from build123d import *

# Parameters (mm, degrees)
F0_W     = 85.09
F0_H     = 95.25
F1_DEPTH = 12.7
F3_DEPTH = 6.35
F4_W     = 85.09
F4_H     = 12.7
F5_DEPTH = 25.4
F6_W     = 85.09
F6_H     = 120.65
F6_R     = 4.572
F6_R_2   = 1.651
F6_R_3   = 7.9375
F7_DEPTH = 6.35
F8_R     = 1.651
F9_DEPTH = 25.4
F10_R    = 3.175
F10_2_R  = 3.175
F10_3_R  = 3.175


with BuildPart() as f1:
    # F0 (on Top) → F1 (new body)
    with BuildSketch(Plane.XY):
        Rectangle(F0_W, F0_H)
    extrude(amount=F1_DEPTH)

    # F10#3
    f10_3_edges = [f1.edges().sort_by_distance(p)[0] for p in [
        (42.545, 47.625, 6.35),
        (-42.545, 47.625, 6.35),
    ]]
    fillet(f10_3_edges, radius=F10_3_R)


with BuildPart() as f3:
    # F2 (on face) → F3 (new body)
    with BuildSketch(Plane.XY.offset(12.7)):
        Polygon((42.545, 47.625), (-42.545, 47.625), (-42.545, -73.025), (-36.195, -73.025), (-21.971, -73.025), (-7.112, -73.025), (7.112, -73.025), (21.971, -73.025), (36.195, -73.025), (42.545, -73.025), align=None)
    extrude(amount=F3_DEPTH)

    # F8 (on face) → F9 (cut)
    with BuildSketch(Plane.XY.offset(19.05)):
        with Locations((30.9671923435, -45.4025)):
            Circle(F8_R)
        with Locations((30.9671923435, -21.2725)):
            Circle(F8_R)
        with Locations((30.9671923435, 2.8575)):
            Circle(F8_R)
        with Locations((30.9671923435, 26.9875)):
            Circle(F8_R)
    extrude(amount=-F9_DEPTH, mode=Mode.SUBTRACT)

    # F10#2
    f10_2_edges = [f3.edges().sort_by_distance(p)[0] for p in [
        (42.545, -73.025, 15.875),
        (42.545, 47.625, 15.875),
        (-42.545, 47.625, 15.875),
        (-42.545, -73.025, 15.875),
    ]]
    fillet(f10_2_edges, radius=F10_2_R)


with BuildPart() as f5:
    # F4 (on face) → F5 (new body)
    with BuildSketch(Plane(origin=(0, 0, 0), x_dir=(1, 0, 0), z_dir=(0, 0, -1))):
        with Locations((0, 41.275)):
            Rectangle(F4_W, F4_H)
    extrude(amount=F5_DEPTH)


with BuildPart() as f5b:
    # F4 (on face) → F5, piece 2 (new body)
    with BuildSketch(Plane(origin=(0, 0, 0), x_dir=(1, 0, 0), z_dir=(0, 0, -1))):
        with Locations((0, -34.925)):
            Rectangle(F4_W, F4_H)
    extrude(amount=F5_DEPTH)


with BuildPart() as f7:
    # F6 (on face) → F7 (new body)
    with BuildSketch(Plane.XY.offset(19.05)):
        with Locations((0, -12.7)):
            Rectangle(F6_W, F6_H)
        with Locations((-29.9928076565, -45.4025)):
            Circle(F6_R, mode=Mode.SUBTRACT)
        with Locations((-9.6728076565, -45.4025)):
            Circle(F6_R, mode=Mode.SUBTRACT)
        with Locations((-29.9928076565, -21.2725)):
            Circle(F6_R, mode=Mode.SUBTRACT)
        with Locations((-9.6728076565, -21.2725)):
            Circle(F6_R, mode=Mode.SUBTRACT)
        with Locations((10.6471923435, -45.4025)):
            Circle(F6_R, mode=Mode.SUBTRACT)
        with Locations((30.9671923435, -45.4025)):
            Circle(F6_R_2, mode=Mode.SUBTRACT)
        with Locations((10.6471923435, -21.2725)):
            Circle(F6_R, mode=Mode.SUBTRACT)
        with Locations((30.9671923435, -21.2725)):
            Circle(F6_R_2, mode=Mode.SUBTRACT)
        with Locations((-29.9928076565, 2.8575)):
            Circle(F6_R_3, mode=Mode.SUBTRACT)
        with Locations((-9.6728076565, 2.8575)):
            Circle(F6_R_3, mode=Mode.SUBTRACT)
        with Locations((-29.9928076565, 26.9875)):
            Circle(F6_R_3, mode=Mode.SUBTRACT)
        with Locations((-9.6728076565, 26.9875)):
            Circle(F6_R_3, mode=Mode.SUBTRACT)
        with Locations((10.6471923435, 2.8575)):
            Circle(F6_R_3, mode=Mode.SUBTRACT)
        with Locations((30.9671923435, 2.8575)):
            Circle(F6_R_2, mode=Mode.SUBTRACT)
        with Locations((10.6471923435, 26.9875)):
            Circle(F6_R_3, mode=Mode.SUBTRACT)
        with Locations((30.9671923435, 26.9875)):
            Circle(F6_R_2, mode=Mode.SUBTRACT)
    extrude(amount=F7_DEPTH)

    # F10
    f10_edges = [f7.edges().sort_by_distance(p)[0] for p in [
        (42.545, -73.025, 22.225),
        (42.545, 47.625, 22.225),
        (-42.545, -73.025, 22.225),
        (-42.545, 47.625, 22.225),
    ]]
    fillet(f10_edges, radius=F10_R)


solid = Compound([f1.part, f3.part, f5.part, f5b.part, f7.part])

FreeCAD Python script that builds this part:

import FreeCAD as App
import Part
import Sketcher

V = App.Vector
Q = App.Units.Quantity


def edges_at(feature, points):
    """Names of the edges that pass closest to the given points."""
    edges = feature.Shape.Edges
    near = lambda p: min(range(len(edges)), key=lambda i: edges[i].distToShape(Part.Vertex(*p))[0])
    return sorted({f"Edge{near(p) + 1}" for p in points})

doc = App.newDocument("Part")
body = doc.addObject("PartDesign::Body", "Body")

sketch1 = doc.addObject("Sketcher::SketchObject", "Sketch")
body.addObject(sketch1)
sketch1.AttachmentSupport = (doc.XY_Plane, [""])
sketch1.MapMode = "FlatFace"
sketch1.addGeometry(Part.LineSegment(V(-43, 48, 0), V(-43, -48, 0)), False)
sketch1.addGeometry(Part.LineSegment(V(-43, -48, 0), V(43, -48, 0)), False)
sketch1.addGeometry(Part.LineSegment(V(43, -48, 0), V(43, 48, 0)), False)
sketch1.addGeometry(Part.LineSegment(V(43, 48, 0), V(-43, 48, 0)), False)
sketch1.addConstraint(Sketcher.Constraint("Coincident", 0, 2, 1, 1))
sketch1.addConstraint(Sketcher.Constraint("Coincident", 1, 2, 2, 1))
sketch1.addConstraint(Sketcher.Constraint("Coincident", 2, 2, 3, 1))
sketch1.addConstraint(Sketcher.Constraint("Coincident", 3, 2, 0, 1))
sketch1.addConstraint(Sketcher.Constraint("Vertical", 0))
sketch1.addConstraint(Sketcher.Constraint("Horizontal", 1))
sketch1.addConstraint(Sketcher.Constraint("Vertical", 2))
sketch1.addConstraint(Sketcher.Constraint("Horizontal", 3))
sketch1.addConstraint(Sketcher.Constraint("Symmetric", 0, 2, 2, 2, -1, 1))
sketch1.addConstraint(Sketcher.Constraint("DistanceX", 1, 1, 1, 2, Q("3.35 in")))
sketch1.addConstraint(Sketcher.Constraint("DistanceY", 0, 2, 0, 1, Q("3.75 in")))
pad1 = doc.addObject("PartDesign::Pad", "Pad")
body.addObject(pad1)
pad1.Profile = sketch1
pad1.Length = Q("0.5 in")
doc.recompute()

fillet = doc.addObject("PartDesign::Fillet", "Fillet")
body.addObject(fillet)
fillet.Base = (pad1, edges_at(pad1, [(42.545, 47.625, 6.35), (-42.545, 47.625, 6.35)]))
fillet.Radius = Q("0.125 in")
body2 = doc.addObject("PartDesign::Body", "Body001")

sketch2 = doc.addObject("Sketcher::SketchObject", "Sketch001")
body2.addObject(sketch2)
sketch2.AttachmentSupport = (doc.getObject("XY_Plane001"), [""])
sketch2.MapMode = "FlatFace"
sketch2.AttachmentOffset = App.Placement(V(0, 0, 0.5 * 25.4), App.Rotation())
sketch2.addGeometry(Part.LineSegment(V(43, 48, 0), V(-43, 48, 0)), False)
sketch2.addGeometry(Part.LineSegment(V(-43, 48, 0), V(-43, -73, 0)), False)
sketch2.addGeometry(Part.LineSegment(V(-43, -73, 0), V(43, -73, 0)), False)
sketch2.addGeometry(Part.LineSegment(V(43, -73, 0), V(43, 48, 0)), False)
sketch2.addConstraint(Sketcher.Constraint("Coincident", 0, 2, 1, 1))
sketch2.addConstraint(Sketcher.Constraint("Coincident", 1, 2, 2, 1))
sketch2.addConstraint(Sketcher.Constraint("Coincident", 2, 2, 3, 1))
sketch2.addConstraint(Sketcher.Constraint("Coincident", 3, 2, 0, 1))
sketch2.addConstraint(Sketcher.Constraint("Horizontal", 0))
sketch2.addConstraint(Sketcher.Constraint("Vertical", 1))
sketch2.addConstraint(Sketcher.Constraint("Horizontal", 2))
sketch2.addConstraint(Sketcher.Constraint("Vertical", 3))
sketch2.addConstraint(Sketcher.Constraint("DistanceX", 0, 2, 0, 1, Q("3.35 in")))
sketch2.addConstraint(Sketcher.Constraint("DistanceY", 1, 2, 1, 1, Q("4.75 in")))
sketch2.addConstraint(Sketcher.Constraint("DistanceX", 0, 2, -1, 1, Q("1.675 in")))
sketch2.addConstraint(Sketcher.Constraint("DistanceY", -1, 1, 0, 2, Q("1.875 in")))
pad2 = doc.addObject("PartDesign::Pad", "Pad001")
body2.addObject(pad2)
pad2.Profile = sketch2
pad2.Length = Q("0.25 in")

sketch3 = doc.addObject("Sketcher::SketchObject", "Sketch002")
body2.addObject(sketch3)
sketch3.AttachmentSupport = (doc.getObject("XY_Plane001"), [""])
sketch3.MapMode = "FlatFace"
sketch3.AttachmentOffset = App.Placement(V(0, 0, 0.75 * 25.4), App.Rotation())
sketch3.addGeometry(Part.Circle(V(31, -45.4, 0), V(0, 0, 1), 1.7), False)
sketch3.addGeometry(Part.Circle(V(31, -21.3, 0), V(0, 0, 1), 1.7), False)
sketch3.addGeometry(Part.Circle(V(31, 2.9, 0), V(0, 0, 1), 1.7), False)
sketch3.addGeometry(Part.Circle(V(31, 27, 0), V(0, 0, 1), 1.7), False)
sketch3.addConstraint(Sketcher.Constraint("Equal", 0, 1))
sketch3.addConstraint(Sketcher.Constraint("Equal", 1, 2))
sketch3.addConstraint(Sketcher.Constraint("Equal", 2, 3))
sketch3.addConstraint(Sketcher.Constraint("Vertical", 0, 3, 1, 3))
sketch3.addConstraint(Sketcher.Constraint("Vertical", 1, 3, 2, 3))
sketch3.addConstraint(Sketcher.Constraint("Vertical", 2, 3, 3, 3))
sketch3.addConstraint(Sketcher.Constraint("Diameter", 0, Q("0.13 in")))
sketch3.addConstraint(Sketcher.Constraint("DistanceY", 0, 3, 2, 3, Q("1.9 in")))
sketch3.addConstraint(Sketcher.Constraint("DistanceY", 1, 3, 3, 3, Q("1.9 in")))
sketch3.addConstraint(Sketcher.Constraint("DistanceY", 0, 3, 1, 3, Q("0.95 in")))
sketch3.addConstraint(Sketcher.Constraint("DistanceY", -1, 1, 3, 3, Q("1.0625 in")))
sketch3.addConstraint(Sketcher.Constraint("DistanceX", -1, 1, 0, 3, 30.967192))
pocket1 = doc.addObject("PartDesign::Pocket", "Pocket")
body2.addObject(pocket1)
pocket1.Profile = sketch3
pocket1.Length = Q("1 in")
doc.recompute()

fillet2 = doc.addObject("PartDesign::Fillet", "Fillet001")
body2.addObject(fillet2)
fillet2.Base = (pocket1, edges_at(pocket1, [
    (42.545, -73.025, 15.875),
    (42.545, 47.625, 15.875),
    (-42.545, 47.625, 15.875),
    (-42.545, -73.025, 15.875),
]))
fillet2.Radius = Q("0.125 in")
body3 = doc.addObject("PartDesign::Body", "Body002")

sketch4 = doc.addObject("Sketcher::SketchObject", "Sketch003")
body3.addObject(sketch4)
sketch4.AttachmentSupport = (doc.getObject("XY_Plane002"), [""])
sketch4.MapMode = "FlatFace"
sketch4.addGeometry(Part.LineSegment(V(-43, -48, 0), V(-43, -35, 0)), False)
sketch4.addGeometry(Part.LineSegment(V(-43, -35, 0), V(43, -35, 0)), False)
sketch4.addGeometry(Part.LineSegment(V(43, -35, 0), V(43, -48, 0)), False)
sketch4.addGeometry(Part.LineSegment(V(43, -48, 0), V(-43, -48, 0)), False)
sketch4.addConstraint(Sketcher.Constraint("Coincident", 0, 2, 1, 1))
sketch4.addConstraint(Sketcher.Constraint("Coincident", 1, 2, 2, 1))
sketch4.addConstraint(Sketcher.Constraint("Coincident", 2, 2, 3, 1))
sketch4.addConstraint(Sketcher.Constraint("Coincident", 3, 2, 0, 1))
sketch4.addConstraint(Sketcher.Constraint("Vertical", 0))
sketch4.addConstraint(Sketcher.Constraint("Horizontal", 1))
sketch4.addConstraint(Sketcher.Constraint("Vertical", 2))
sketch4.addConstraint(Sketcher.Constraint("Horizontal", 3))
sketch4.addConstraint(Sketcher.Constraint("DistanceY", 0, 1, 0, 2, Q("0.5 in")))
sketch4.addConstraint(Sketcher.Constraint("DistanceX", 1, 1, 1, 2, Q("3.35 in")))
sketch4.addConstraint(Sketcher.Constraint("DistanceX", 0, 2, -1, 1, Q("1.675 in")))
sketch4.addConstraint(Sketcher.Constraint("DistanceY", 0, 2, -1, 1, Q("1.375 in")))
pad3 = doc.addObject("PartDesign::Pad", "Pad002")
body3.addObject(pad3)
pad3.Profile = sketch4
pad3.Length = Q("1 in")
pad3.Reversed = True
body4 = doc.addObject("PartDesign::Body", "Body003")

sketch5 = doc.addObject("Sketcher::SketchObject", "Sketch004")
body4.addObject(sketch5)
sketch5.AttachmentSupport = (doc.getObject("XY_Plane003"), [""])
sketch5.MapMode = "FlatFace"
sketch5.addGeometry(Part.LineSegment(V(-43, 29, 0), V(-43, 41, 0)), False)
sketch5.addGeometry(Part.LineSegment(V(-43, 41, 0), V(43, 41, 0)), False)
sketch5.addGeometry(Part.LineSegment(V(43, 41, 0), V(43, 29, 0)), False)
sketch5.addGeometry(Part.LineSegment(V(43, 29, 0), V(-43, 29, 0)), False)
sketch5.addConstraint(Sketcher.Constraint("Coincident", 0, 2, 1, 1))
sketch5.addConstraint(Sketcher.Constraint("Coincident", 1, 2, 2, 1))
sketch5.addConstraint(Sketcher.Constraint("Coincident", 2, 2, 3, 1))
sketch5.addConstraint(Sketcher.Constraint("Coincident", 3, 2, 0, 1))
sketch5.addConstraint(Sketcher.Constraint("Vertical", 0))
sketch5.addConstraint(Sketcher.Constraint("Horizontal", 1))
sketch5.addConstraint(Sketcher.Constraint("Vertical", 2))
sketch5.addConstraint(Sketcher.Constraint("Horizontal", 3))
sketch5.addConstraint(Sketcher.Constraint("DistanceY", 0, 1, 0, 2, Q("0.5 in")))
sketch5.addConstraint(Sketcher.Constraint("DistanceX", 1, 1, 1, 2, Q("3.35 in")))
sketch5.addConstraint(Sketcher.Constraint("DistanceX", 0, 2, -1, 1, Q("1.675 in")))
sketch5.addConstraint(Sketcher.Constraint("DistanceY", -1, 1, 0, 2, Q("1.625 in")))
pad4 = doc.addObject("PartDesign::Pad", "Pad003")
body4.addObject(pad4)
pad4.Profile = sketch5
pad4.Length = Q("1 in")
pad4.Reversed = True
body5 = doc.addObject("PartDesign::Body", "Body004")

sketch6 = doc.addObject("Sketcher::SketchObject", "Sketch005")
body5.addObject(sketch6)
sketch6.AttachmentSupport = (doc.getObject("XY_Plane004"), [""])
sketch6.MapMode = "FlatFace"
sketch6.AttachmentOffset = App.Placement(V(0, 0, 0.75 * 25.4), App.Rotation())
sketch6.addGeometry(Part.LineSegment(V(-42.5, 47.6, 0), V(-42.5, -73, 0)), False)
sketch6.addGeometry(Part.LineSegment(V(-42.5, -73, 0), V(42.5, -73, 0)), False)
sketch6.addGeometry(Part.LineSegment(V(42.5, -73, 0), V(42.5, 47.6, 0)), False)
sketch6.addGeometry(Part.LineSegment(V(42.5, 47.6, 0), V(-42.5, 47.6, 0)), False)
sketch6.addGeometry(Part.Circle(V(-30, -45.4, 0), V(0, 0, 1), 4.6), False)
sketch6.addGeometry(Part.Circle(V(-9.7, -45.4, 0), V(0, 0, 1), 4.6), False)
sketch6.addGeometry(Part.Circle(V(-30, -21.3, 0), V(0, 0, 1), 4.6), False)
sketch6.addGeometry(Part.Circle(V(-9.7, -21.3, 0), V(0, 0, 1), 4.6), False)
sketch6.addGeometry(Part.Circle(V(10.6, -45.4, 0), V(0, 0, 1), 4.6), False)
sketch6.addGeometry(Part.Circle(V(31, -45.4, 0), V(0, 0, 1), 1.7), False)
sketch6.addGeometry(Part.Circle(V(10.6, -21.3, 0), V(0, 0, 1), 4.6), False)
sketch6.addGeometry(Part.Circle(V(31, -21.3, 0), V(0, 0, 1), 1.7), False)
sketch6.addGeometry(Part.Circle(V(-30, 2.9, 0), V(0, 0, 1), 7.9), False)
sketch6.addGeometry(Part.Circle(V(-9.7, 2.9, 0), V(0, 0, 1), 7.9), False)
sketch6.addGeometry(Part.Circle(V(-30, 27, 0), V(0, 0, 1), 7.9), False)
sketch6.addGeometry(Part.Circle(V(-9.7, 27, 0), V(0, 0, 1), 7.9), False)
sketch6.addGeometry(Part.Circle(V(10.6, 2.9, 0), V(0, 0, 1), 7.9), False)
sketch6.addGeometry(Part.Circle(V(31, 2.9, 0), V(0, 0, 1), 1.7), False)
sketch6.addGeometry(Part.Circle(V(10.6, 27, 0), V(0, 0, 1), 7.9), False)
sketch6.addGeometry(Part.Circle(V(31, 27, 0), V(0, 0, 1), 1.7), False)
sketch6.addConstraint(Sketcher.Constraint("Coincident", 0, 2, 1, 1))
sketch6.addConstraint(Sketcher.Constraint("Coincident", 1, 2, 2, 1))
sketch6.addConstraint(Sketcher.Constraint("Coincident", 2, 2, 3, 1))
sketch6.addConstraint(Sketcher.Constraint("Coincident", 3, 2, 0, 1))
sketch6.addConstraint(Sketcher.Constraint("Vertical", 0))
sketch6.addConstraint(Sketcher.Constraint("Horizontal", 1))
sketch6.addConstraint(Sketcher.Constraint("Vertical", 2))
sketch6.addConstraint(Sketcher.Constraint("Horizontal", 3))
sketch6.addConstraint(Sketcher.Constraint("Equal", 4, 5))
sketch6.addConstraint(Sketcher.Constraint("Equal", 5, 6))
sketch6.addConstraint(Sketcher.Constraint("Equal", 6, 7))
sketch6.addConstraint(Sketcher.Constraint("Equal", 7, 8))
sketch6.addConstraint(Sketcher.Constraint("Equal", 8, 10))
sketch6.addConstraint(Sketcher.Constraint("Equal", 9, 11))
sketch6.addConstraint(Sketcher.Constraint("Equal", 12, 13))
sketch6.addConstraint(Sketcher.Constraint("Equal", 13, 14))
sketch6.addConstraint(Sketcher.Constraint("Equal", 14, 15))
sketch6.addConstraint(Sketcher.Constraint("Equal", 15, 16))
sketch6.addConstraint(Sketcher.Constraint("Equal", 11, 17))
sketch6.addConstraint(Sketcher.Constraint("Equal", 16, 18))
sketch6.addConstraint(Sketcher.Constraint("Equal", 17, 19))
sketch6.addConstraint(Sketcher.Constraint("Horizontal", 4, 3, 5, 3))
sketch6.addConstraint(Sketcher.Constraint("Horizontal", 6, 3, 7, 3))
sketch6.addConstraint(Sketcher.Constraint("Horizontal", 5, 3, 8, 3))
sketch6.addConstraint(Sketcher.Constraint("Horizontal", 8, 3, 9, 3))
sketch6.addConstraint(Sketcher.Constraint("Horizontal", 7, 3, 10, 3))
sketch6.addConstraint(Sketcher.Constraint("Horizontal", 10, 3, 11, 3))
sketch6.addConstraint(Sketcher.Constraint("Horizontal", 12, 3, 13, 3))
sketch6.addConstraint(Sketcher.Constraint("Horizontal", 14, 3, 15, 3))
sketch6.addConstraint(Sketcher.Constraint("Horizontal", 13, 3, 16, 3))
sketch6.addConstraint(Sketcher.Constraint("Horizontal", 16, 3, 17, 3))
sketch6.addConstraint(Sketcher.Constraint("Horizontal", 15, 3, 18, 3))
sketch6.addConstraint(Sketcher.Constraint("Horizontal", 18, 3, 19, 3))
sketch6.addConstraint(Sketcher.Constraint("Vertical", 4, 3, 6, 3))
sketch6.addConstraint(Sketcher.Constraint("Vertical", 5, 3, 7, 3))
sketch6.addConstraint(Sketcher.Constraint("Vertical", 8, 3, 10, 3))
sketch6.addConstraint(Sketcher.Constraint("Vertical", 9, 3, 11, 3))
sketch6.addConstraint(Sketcher.Constraint("Vertical", 6, 3, 12, 3))
sketch6.addConstraint(Sketcher.Constraint("Vertical", 7, 3, 13, 3))
sketch6.addConstraint(Sketcher.Constraint("Vertical", 12, 3, 14, 3))
sketch6.addConstraint(Sketcher.Constraint("Vertical", 13, 3, 15, 3))
sketch6.addConstraint(Sketcher.Constraint("Vertical", 10, 3, 16, 3))
sketch6.addConstraint(Sketcher.Constraint("Vertical", 11, 3, 17, 3))
sketch6.addConstraint(Sketcher.Constraint("Vertical", 16, 3, 18, 3))
sketch6.addConstraint(Sketcher.Constraint("Vertical", 17, 3, 19, 3))
sketch6.addConstraint(Sketcher.Constraint("Diameter", 4, Q("0.36 in")))
sketch6.addConstraint(Sketcher.Constraint("Diameter", 9, Q("0.13 in")))
sketch6.addConstraint(Sketcher.Constraint("Diameter", 12, Q("0.625 in")))
sketch6.addConstraint(Sketcher.Constraint("DistanceX", 1, 1, 1, 2, Q("3.35 in")))
sketch6.addConstraint(Sketcher.Constraint("DistanceY", 0, 2, 0, 1, Q("4.75 in")))
sketch6.addConstraint(Sketcher.Constraint("DistanceX", 4, 3, 5, 3, Q("0.8 in")))
sketch6.addConstraint(Sketcher.Constraint("DistanceX", 5, 3, 8, 3, Q("0.8 in")))
sketch6.addConstraint(Sketcher.Constraint("DistanceX", 8, 3, 9, 3, Q("0.8 in")))
sketch6.addConstraint(Sketcher.Constraint("DistanceY", 4, 3, 12, 3, Q("1.9 in")))
sketch6.addConstraint(Sketcher.Constraint("DistanceY", 6, 3, 14, 3, Q("1.9 in")))
sketch6.addConstraint(Sketcher.Constraint("DistanceY", 4, 3, 6, 3, Q("0.95 in")))
sketch6.addConstraint(Sketcher.Constraint("DistanceY", -1, 1, 14, 3, Q("1.0625 in")))
sketch6.addConstraint(Sketcher.Constraint("DistanceX", 0, 2, -1, 1, Q("1.675 in")))
sketch6.addConstraint(Sketcher.Constraint("DistanceY", 0, 2, -1, 1, Q("2.875 in")))
sketch6.addConstraint(Sketcher.Constraint("DistanceX", 4, 3, -1, 1, 29.992808))
pad5 = doc.addObject("PartDesign::Pad", "Pad004")
body5.addObject(pad5)
pad5.Profile = sketch6
pad5.Length = Q("0.25 in")
doc.recompute()

fillet3 = doc.addObject("PartDesign::Fillet", "Fillet002")
body5.addObject(fillet3)
fillet3.Base = (pad5, edges_at(pad5, [
    (42.545, -73.025, 22.225),
    (42.545, 47.625, 22.225),
    (-42.545, -73.025, 22.225),
    (-42.545, 47.625, 22.225),
]))
fillet3.Radius = Q("0.125 in")

doc.recompute()
